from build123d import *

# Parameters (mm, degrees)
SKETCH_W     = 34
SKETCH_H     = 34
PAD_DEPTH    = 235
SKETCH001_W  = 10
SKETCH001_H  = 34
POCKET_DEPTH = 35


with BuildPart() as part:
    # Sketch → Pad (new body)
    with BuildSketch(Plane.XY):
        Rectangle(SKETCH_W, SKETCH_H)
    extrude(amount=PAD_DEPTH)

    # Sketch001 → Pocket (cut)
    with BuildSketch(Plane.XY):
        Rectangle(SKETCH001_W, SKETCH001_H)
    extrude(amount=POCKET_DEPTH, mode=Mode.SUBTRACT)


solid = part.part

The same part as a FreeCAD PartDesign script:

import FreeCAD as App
import Part
import Sketcher
Q = App.Units.Quantity

doc = App.newDocument("Part")
body = doc.addObject("PartDesign::Body", "Body")

# Sketch on XY plane
sketch1 = body.newObject("Sketcher::SketchObject", "Sketch")
sketch1.AttachmentSupport = (doc.getObject("XY_Plane"), [""])
sketch1.MapMode = "FlatFace"
sketch1.addGeometry(Part.LineSegment(App.Vector(-17, 17, 0), App.Vector(-17, -17, 0)), False)
sketch1.addGeometry(Part.LineSegment(App.Vector(-17, -17, 0), App.Vector(17, -17, 0)), False)
sketch1.addGeometry(Part.LineSegment(App.Vector(17, -17, 0), App.Vector(17, 17, 0)), False)
sketch1.addGeometry(Part.LineSegment(App.Vector(17, 17, 0), App.Vector(-17, 17, 0)), False)
sketch1.addConstraint(Sketcher.Constraint("Coincident", 0, 2, 1, 1))
sketch1.addConstraint(Sketcher.Constraint("Coincident", 1, 2, 2, 1))
sketch1.addConstraint(Sketcher.Constraint("Coincident", 2, 2, 3, 1))
sketch1.addConstraint(Sketcher.Constraint("Coincident", 3, 2, 0, 1))
sketch1.addConstraint(Sketcher.Constraint("Vertical", 0))
sketch1.addConstraint(Sketcher.Constraint("Horizontal", 1))
sketch1.addConstraint(Sketcher.Constraint("Vertical", 2))
sketch1.addConstraint(Sketcher.Constraint("Horizontal", 3))
sketch1.addConstraint(Sketcher.Constraint("Symmetric", 0, 2, 2, 2, -1, 1))
sketch1.addConstraint(Sketcher.Constraint("Equal", 3, 0))
sketch1.addConstraint(Sketcher.Constraint("DistanceX", 1, 1, 1, 2, Q("34 mm")))
pad1 = body.newObject("PartDesign::Pad", "Pad")
pad1.Profile = sketch1
pad1.Length = 235

# Sketch on XY plane
sketch2 = body.newObject("Sketcher::SketchObject", "Sketch001")
sketch2.AttachmentSupport = (doc.getObject("XY_Plane"), [""])
sketch2.MapMode = "FlatFace"
sketch2.addGeometry(Part.LineSegment(App.Vector(-5, 17, 0), App.Vector(-5, -17, 0)), False)
sketch2.addGeometry(Part.LineSegment(App.Vector(-5, -17, 0), App.Vector(5, -17, 0)), False)
sketch2.addGeometry(Part.LineSegment(App.Vector(5, -17, 0), App.Vector(5, 17, 0)), False)
sketch2.addGeometry(Part.LineSegment(App.Vector(5, 17, 0), App.Vector(-5, 17, 0)), False)
sketch2.addConstraint(Sketcher.Constraint("Coincident", 0, 2, 1, 1))
sketch2.addConstraint(Sketcher.Constraint("Coincident", 1, 2, 2, 1))
sketch2.addConstraint(Sketcher.Constraint("Coincident", 2, 2, 3, 1))
sketch2.addConstraint(Sketcher.Constraint("Coincident", 3, 2, 0, 1))
sketch2.addConstraint(Sketcher.Constraint("Vertical", 0))
sketch2.addConstraint(Sketcher.Constraint("Horizontal", 1))
sketch2.addConstraint(Sketcher.Constraint("Vertical", 2))
sketch2.addConstraint(Sketcher.Constraint("Horizontal", 3))
sketch2.addConstraint(Sketcher.Constraint("Symmetric", 0, 2, 2, 2, -1, 1))
sketch2.addConstraint(Sketcher.Constraint("DistanceX", 1, 1, 1, 2, Q("10 mm")))
sketch2.addConstraint(Sketcher.Constraint("DistanceY", 0, 2, 0, 1, Q("34 mm")))
pocket1 = body.newObject("PartDesign::Pocket", "Pocket")
pocket1.Profile = sketch2
pocket1.Length = 35
pocket1.Reversed = True

doc.recompute()
